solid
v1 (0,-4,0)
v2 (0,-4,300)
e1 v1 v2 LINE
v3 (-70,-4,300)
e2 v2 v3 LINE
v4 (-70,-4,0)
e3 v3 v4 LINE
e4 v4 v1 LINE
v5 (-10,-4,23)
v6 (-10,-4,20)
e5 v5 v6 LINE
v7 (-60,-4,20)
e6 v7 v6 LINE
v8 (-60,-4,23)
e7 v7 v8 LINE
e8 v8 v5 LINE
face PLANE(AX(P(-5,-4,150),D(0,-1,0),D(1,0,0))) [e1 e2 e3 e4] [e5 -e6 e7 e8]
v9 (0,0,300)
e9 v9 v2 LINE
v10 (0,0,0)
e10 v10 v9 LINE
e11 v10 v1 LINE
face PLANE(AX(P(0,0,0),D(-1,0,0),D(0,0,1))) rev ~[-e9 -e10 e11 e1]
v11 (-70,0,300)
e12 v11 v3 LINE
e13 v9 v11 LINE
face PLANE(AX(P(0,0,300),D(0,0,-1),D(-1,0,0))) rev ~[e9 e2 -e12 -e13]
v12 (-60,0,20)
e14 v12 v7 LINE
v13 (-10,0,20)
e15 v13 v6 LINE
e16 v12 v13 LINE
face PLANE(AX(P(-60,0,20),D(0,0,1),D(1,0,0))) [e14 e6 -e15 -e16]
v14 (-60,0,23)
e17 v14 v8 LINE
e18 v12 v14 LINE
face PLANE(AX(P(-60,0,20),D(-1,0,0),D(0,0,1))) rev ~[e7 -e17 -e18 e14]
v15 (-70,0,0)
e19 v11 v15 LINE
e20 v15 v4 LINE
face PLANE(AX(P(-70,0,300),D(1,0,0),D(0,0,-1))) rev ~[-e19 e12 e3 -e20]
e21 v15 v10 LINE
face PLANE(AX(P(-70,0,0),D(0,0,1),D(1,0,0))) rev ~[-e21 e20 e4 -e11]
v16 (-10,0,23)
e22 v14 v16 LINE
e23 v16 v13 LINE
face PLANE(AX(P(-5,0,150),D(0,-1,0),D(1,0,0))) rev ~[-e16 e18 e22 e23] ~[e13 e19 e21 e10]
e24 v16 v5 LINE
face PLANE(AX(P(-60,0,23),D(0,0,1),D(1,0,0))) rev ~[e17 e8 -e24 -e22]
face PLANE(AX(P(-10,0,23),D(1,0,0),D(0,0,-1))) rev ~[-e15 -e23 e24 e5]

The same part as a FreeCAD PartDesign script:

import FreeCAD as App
import Part
import Sketcher
from FreeCAD import Vector
Q = App.Units.Quantity

doc = App.newDocument("Part")
body = doc.addObject("PartDesign::Body", "Body")

sketch1 = body.newObject("Sketcher::SketchObject", "Sketch")
sketch1.AttachmentSupport = (doc.getObject("XZ_Plane"), [""])
sketch1.MapMode = "FlatFace"
sketch1.addGeometry([
    Part.LineSegment(Vector(0, 0, 0), Vector(0, 300, 0)),
    Part.LineSegment(Vector(0, 300, 0), Vector(-70, 300, 0)),
    Part.LineSegment(Vector(-70, 300, 0), Vector(-70, 0, 0)),
    Part.LineSegment(Vector(-70, 0, 0), Vector(0, 0, 0)),
    Part.LineSegment(Vector(-10, 23, 0), Vector(-10, 20, 0)),
    Part.LineSegment(Vector(-10, 20, 0), Vector(-60, 20, 0)),
    Part.LineSegment(Vector(-60, 20, 0), Vector(-60, 23, 0)),
    Part.LineSegment(Vector(-60, 23, 0), Vector(-10, 23, 0)),
], False)
sketch1.addConstraint([
    Sketcher.Constraint("Coincident", 0, 2, 1, 1),
    Sketcher.Constraint("Coincident", 1, 2, 2, 1),
    Sketcher.Constraint("Coincident", 2, 2, 3, 1),
    Sketcher.Constraint("Coincident", 3, 2, 0, 1),
    Sketcher.Constraint("Coincident", 4, 2, 5, 1),
    Sketcher.Constraint("Coincident", 5, 2, 6, 1),
    Sketcher.Constraint("Coincident", 6, 2, 7, 1),
    Sketcher.Constraint("Coincident", 7, 2, 4, 1),
    Sketcher.Constraint("Vertical", 0),
    Sketcher.Constraint("Horizontal", 1),
    Sketcher.Constraint("Vertical", 2),
    Sketcher.Constraint("Horizontal", 3),
    Sketcher.Constraint("Vertical", 4),
    Sketcher.Constraint("Horizontal", 5),
    Sketcher.Constraint("Vertical", 6),
    Sketcher.Constraint("Horizontal", 7),
    Sketcher.Constraint("Coincident", 3, 2, -1, 1),
    Sketcher.Constraint("DistanceX", 1, 2, 1, 1, Q("70 mm")),
    Sketcher.Constraint("DistanceX", 5, 2, 5, 1, Q("50 mm")),
    Sketcher.Constraint("DistanceY", 0, 1, 0, 2, Q("300 mm")),
    Sketcher.Constraint("DistanceY", 4, 2, 4, 1, Q("3 mm")),
    Sketcher.Constraint("DistanceX", 4, 2, -1, 1, Q("10 mm")),
    Sketcher.Constraint("DistanceY", -1, 1, 4, 2, Q("20 mm")),
])
pad1 = body.newObject("PartDesign::Pad", "Pad")
pad1.Profile = sketch1
pad1.Length = 4

doc.recompute()
